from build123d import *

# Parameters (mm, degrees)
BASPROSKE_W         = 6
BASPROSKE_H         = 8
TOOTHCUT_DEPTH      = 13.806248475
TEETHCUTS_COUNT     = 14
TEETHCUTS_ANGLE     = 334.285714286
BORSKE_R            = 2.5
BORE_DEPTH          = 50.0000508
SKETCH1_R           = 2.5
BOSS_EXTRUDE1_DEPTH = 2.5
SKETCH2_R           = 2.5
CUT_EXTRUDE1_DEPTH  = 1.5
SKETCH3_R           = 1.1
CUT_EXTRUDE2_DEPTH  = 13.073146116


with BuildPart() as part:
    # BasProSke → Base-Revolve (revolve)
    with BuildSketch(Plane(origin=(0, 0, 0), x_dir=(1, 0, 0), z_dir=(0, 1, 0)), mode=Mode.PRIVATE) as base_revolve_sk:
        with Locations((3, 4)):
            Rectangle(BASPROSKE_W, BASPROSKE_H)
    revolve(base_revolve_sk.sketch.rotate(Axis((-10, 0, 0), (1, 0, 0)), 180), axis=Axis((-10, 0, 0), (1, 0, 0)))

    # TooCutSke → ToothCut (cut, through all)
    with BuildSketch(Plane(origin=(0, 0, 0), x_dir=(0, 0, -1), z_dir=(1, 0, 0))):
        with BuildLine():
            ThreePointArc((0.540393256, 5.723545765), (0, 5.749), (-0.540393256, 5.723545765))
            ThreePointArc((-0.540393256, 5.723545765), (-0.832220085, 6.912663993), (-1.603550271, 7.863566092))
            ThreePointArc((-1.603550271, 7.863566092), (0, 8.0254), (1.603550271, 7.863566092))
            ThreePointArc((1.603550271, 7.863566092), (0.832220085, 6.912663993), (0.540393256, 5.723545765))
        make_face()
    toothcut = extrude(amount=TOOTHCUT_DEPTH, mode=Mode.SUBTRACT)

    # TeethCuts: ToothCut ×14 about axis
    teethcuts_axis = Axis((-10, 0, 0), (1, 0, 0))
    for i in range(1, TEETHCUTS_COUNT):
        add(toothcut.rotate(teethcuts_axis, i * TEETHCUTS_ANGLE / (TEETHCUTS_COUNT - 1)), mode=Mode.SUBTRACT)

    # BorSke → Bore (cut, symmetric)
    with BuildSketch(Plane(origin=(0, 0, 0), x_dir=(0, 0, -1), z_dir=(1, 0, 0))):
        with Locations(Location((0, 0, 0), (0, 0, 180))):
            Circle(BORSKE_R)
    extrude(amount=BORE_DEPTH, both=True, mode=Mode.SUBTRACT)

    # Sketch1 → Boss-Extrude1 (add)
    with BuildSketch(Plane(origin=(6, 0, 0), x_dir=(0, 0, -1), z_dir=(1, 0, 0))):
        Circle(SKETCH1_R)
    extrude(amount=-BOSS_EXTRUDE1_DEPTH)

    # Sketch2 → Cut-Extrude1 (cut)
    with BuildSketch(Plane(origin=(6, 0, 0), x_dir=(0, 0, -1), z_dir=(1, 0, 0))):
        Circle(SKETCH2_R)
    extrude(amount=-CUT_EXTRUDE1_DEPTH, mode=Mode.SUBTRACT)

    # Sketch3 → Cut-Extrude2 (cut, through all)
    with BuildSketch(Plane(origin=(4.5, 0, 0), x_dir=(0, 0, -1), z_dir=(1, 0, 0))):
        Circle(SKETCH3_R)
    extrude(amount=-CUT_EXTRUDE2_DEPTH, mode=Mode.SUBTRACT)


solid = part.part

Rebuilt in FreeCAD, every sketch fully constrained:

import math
import FreeCAD as App
import Part
import Sketcher

V = App.Vector
Q = App.Units.Quantity

doc = App.newDocument("Part")
body = doc.addObject("PartDesign::Body", "Body")

sketch1 = body.newObject("Sketcher::SketchObject", "Sketch")
sketch1.AttachmentSupport = (doc.getObject("XZ_Plane"), [""])
sketch1.MapMode = "FlatFace"
sketch1.addGeometry(Part.LineSegment(V(0, -8, 0), V(0, 0, 0)), False)
sketch1.addGeometry(Part.LineSegment(V(0, 0, 0), V(6, 0, 0)), False)
sketch1.addGeometry(Part.LineSegment(V(6, 0, 0), V(6, -8, 0)), False)
sketch1.addGeometry(Part.LineSegment(V(6, -8, 0), V(0, -8, 0)), False)
sketch1.addConstraint(Sketcher.Constraint("Coincident", 0, 2, 1, 1))
sketch1.addConstraint(Sketcher.Constraint("Coincident", 1, 2, 2, 1))
sketch1.addConstraint(Sketcher.Constraint("Coincident", 2, 2, 3, 1))
sketch1.addConstraint(Sketcher.Constraint("Coincident", 3, 2, 0, 1))
sketch1.addConstraint(Sketcher.Constraint("Vertical", 0))
sketch1.addConstraint(Sketcher.Constraint("Horizontal", 1))
sketch1.addConstraint(Sketcher.Constraint("Vertical", 2))
sketch1.addConstraint(Sketcher.Constraint("Horizontal", 3))
sketch1.addConstraint(Sketcher.Constraint("Coincident", 0, 2, -1, 1))
sketch1.addConstraint(Sketcher.Constraint("DistanceX", 1, 1, 1, 2, Q("6 mm")))
sketch1.addConstraint(Sketcher.Constraint("DistanceY", 0, 1, 0, 2, Q("8 mm")))
revolution = body.newObject("PartDesign::Revolution", "Revolution")
revolution.Profile = sketch1
revolution.ReferenceAxis = (sketch1, ["H_Axis"])
revolution.Angle = 360

sketch2 = body.newObject("Sketcher::SketchObject", "Sketch001")
sketch2.AttachmentSupport = (doc.getObject("YZ_Plane"), [""])
sketch2.MapMode = "FlatFace"
sketch2.addGeometry(Part.ArcOfCircle(Part.Circle(V(0, 0, 0), V(0, 0, 1), 5.7), math.radians(-5.39), math.radians(5.39)), False)
sketch2.addGeometry(Part.ArcOfCircle(Part.Circle(V(5.7, -3.3, 0), V(0, 0, 1), 2.8), math.radians(38), math.radians(89)), False)
sketch2.addGeometry(Part.ArcOfCircle(Part.Circle(V(0, 0, 0), V(0, 0, 1), 8), math.radians(-12), math.radians(12)), False)
sketch2.addGeometry(Part.ArcOfCircle(Part.Circle(V(5.7, 3.3, 0), V(0, 0, 1), 2.8), math.radians(-89), math.radians(-38)), False)
sketch2.addConstraint(Sketcher.Constraint("Coincident", 0, 1, 1, 2))
sketch2.addConstraint(Sketcher.Constraint("Coincident", 1, 1, 2, 1))
sketch2.addConstraint(Sketcher.Constraint("Coincident", 2, 2, 3, 2))
sketch2.addConstraint(Sketcher.Constraint("Coincident", 3, 1, 0, 2))
sketch2.addConstraint(Sketcher.Constraint("Coincident", 0, 3, -1, 1))
sketch2.addConstraint(Sketcher.Constraint("Coincident", 2, 3, -1, 1))
sketch2.addConstraint(Sketcher.Constraint("Equal", 1, 3))
sketch2.addConstraint(Sketcher.Constraint("Symmetric", 1, 3, 3, 3, -1))
sketch2.addConstraint(Sketcher.Constraint("Radius", 1, Q("2.8 mm")))
sketch2.addConstraint(Sketcher.Constraint("Radius", 0, Q("5.749 mm")))
sketch2.addConstraint(Sketcher.Constraint("Radius", 2, Q("8.0254 mm")))
sketch2.addConstraint(Sketcher.Constraint("DistanceY", 1, 1, 2, 2, Q("3.207101 mm")))
sketch2.addConstraint(Sketcher.Constraint("DistanceY", 1, 3, -1, 1, Q("3.33982 mm")))
pocket1 = body.newObject("PartDesign::Pocket", "Pocket")
pocket1.Profile = sketch2
pocket1.Type = "ThroughAll"
pocket1.Reversed = True
doc.recompute()

polarpattern = body.newObject("PartDesign::PolarPattern", "PolarPattern")
polarpattern.Originals = [pocket1]
polarpattern.Axis = (doc.getObject("X_Axis"), [""])
polarpattern.Angle = 360
polarpattern.Occurrences = 14
body.Tip = polarpattern

sketch3 = body.newObject("Sketcher::SketchObject", "Sketch002")
sketch3.AttachmentSupport = (doc.getObject("YZ_Plane"), [""])
sketch3.MapMode = "FlatFace"
sketch3.addGeometry(Part.Circle(V(0, 0, 0), V(0, 0, 1), 2.5), False)
sketch3.addConstraint(Sketcher.Constraint("Coincident", 0, 3, -1, 1))
sketch3.addConstraint(Sketcher.Constraint("Diameter", 0, Q("5 mm")))
pocket2 = body.newObject("PartDesign::Pocket", "Pocket001")
pocket2.Profile = sketch3
pocket2.Length = 100.000102
pocket2.Midplane = True

sketch4 = body.newObject("Sketcher::SketchObject", "Sketch003")
sketch4.AttachmentSupport = (doc.getObject("YZ_Plane"), [""])
sketch4.MapMode = "FlatFace"
sketch4.AttachmentOffset = App.Placement(V(0, 0, 6), App.Rotation())
sketch4.addGeometry(Part.Circle(V(0, 0, 0), V(0, 0, 1), 2.5), False)
sketch4.addConstraint(Sketcher.Constraint("Coincident", 0, 3, -1, 1))
sketch4.addConstraint(Sketcher.Constraint("Diameter", 0, Q("5 mm")))
pad1 = body.newObject("PartDesign::Pad", "Pad")
pad1.Profile = sketch4
pad1.Length = 2.5
pad1.Reversed = True

sketch5 = body.newObject("Sketcher::SketchObject", "Sketch004")
sketch5.AttachmentSupport = (doc.getObject("YZ_Plane"), [""])
sketch5.MapMode = "FlatFace"
sketch5.AttachmentOffset = App.Placement(V(0, 0, 6), App.Rotation())
sketch5.addGeometry(Part.Circle(V(0, 0, 0), V(0, 0, 1), 2.5), False)
sketch5.addConstraint(Sketcher.Constraint("Coincident", 0, 3, -1, 1))
sketch5.addConstraint(Sketcher.Constraint("Diameter", 0, Q("5 mm")))
pocket3 = body.newObject("PartDesign::Pocket", "Pocket002")
pocket3.Profile = sketch5
pocket3.Length = 1.5

sketch6 = body.newObject("Sketcher::SketchObject", "Sketch005")
sketch6.AttachmentSupport = (doc.getObject("YZ_Plane"), [""])
sketch6.MapMode = "FlatFace"
sketch6.AttachmentOffset = App.Placement(V(0, 0, 4.5), App.Rotation())
sketch6.addGeometry(Part.Circle(V(0, 0, 0), V(0, 0, 1), 1.1), False)
sketch6.addConstraint(Sketcher.Constraint("Coincident", 0, 3, -1, 1))
sketch6.addConstraint(Sketcher.Constraint("Diameter", 0, Q("2.2 mm")))
pocket4 = body.newObject("PartDesign::Pocket", "Pocket003")
pocket4.Profile = sketch6
pocket4.Type = "ThroughAll"

doc.recompute()
